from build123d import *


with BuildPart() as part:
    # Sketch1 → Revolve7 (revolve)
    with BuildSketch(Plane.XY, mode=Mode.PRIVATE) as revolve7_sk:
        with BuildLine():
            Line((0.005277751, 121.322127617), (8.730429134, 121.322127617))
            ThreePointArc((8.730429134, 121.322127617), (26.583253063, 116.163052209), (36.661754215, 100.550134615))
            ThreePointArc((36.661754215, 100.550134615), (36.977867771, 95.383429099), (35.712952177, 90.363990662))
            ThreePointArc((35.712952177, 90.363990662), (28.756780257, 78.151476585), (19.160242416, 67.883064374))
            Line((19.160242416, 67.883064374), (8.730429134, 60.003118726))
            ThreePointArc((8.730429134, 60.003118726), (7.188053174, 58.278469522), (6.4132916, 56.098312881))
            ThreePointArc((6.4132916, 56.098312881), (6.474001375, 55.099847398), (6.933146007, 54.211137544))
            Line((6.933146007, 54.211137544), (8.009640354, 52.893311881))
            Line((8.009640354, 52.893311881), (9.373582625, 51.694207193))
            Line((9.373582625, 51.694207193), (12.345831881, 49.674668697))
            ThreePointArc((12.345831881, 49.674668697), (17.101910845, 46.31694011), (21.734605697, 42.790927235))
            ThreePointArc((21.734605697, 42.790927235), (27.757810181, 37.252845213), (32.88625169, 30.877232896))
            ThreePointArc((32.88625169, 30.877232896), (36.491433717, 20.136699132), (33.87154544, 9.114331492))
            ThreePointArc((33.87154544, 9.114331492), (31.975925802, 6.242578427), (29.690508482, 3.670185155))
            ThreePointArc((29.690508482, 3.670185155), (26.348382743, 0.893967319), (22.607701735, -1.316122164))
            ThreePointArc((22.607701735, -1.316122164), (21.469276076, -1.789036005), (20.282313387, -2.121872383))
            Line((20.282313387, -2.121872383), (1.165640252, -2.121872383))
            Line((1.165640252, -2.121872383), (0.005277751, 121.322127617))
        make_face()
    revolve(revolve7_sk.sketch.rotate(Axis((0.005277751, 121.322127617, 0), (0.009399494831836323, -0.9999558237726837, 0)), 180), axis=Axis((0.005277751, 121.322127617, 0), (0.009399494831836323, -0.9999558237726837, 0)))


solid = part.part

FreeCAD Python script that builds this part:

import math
import FreeCAD as App
import Part
import Sketcher

doc = App.newDocument("Part")
body = doc.addObject("PartDesign::Body", "Body")

# Sketch on XY plane
sketch1 = doc.addObject("Sketcher::SketchObject", "Sketch")
body.addObject(sketch1)
sketch1.AttachmentSupport = (doc.XY_Plane, [""])
sketch1.MapMode = "FlatFace"
sketch1.addGeometry([
    Part.LineSegment(App.Vector(8.730429, 121.322128, 0), App.Vector(0.005278, 121.322128, 0)),  # 0
    Part.LineSegment(App.Vector(0.005278, 121.322128, 0), App.Vector(1.16564, -2.121872, 0)),  # 1
    Part.LineSegment(App.Vector(1.16564, -2.121872, 0), App.Vector(20.282313, -2.121872, 0)),  # 2
    Part.ArcOfCircle(Part.Circle(App.Vector(18.113131, 7.89677, 0), App.Vector(0, 0, 1), 10.250783), math.radians(-77.7832), math.radians(-63.994259)),  # 3
    Part.ArcOfCircle(Part.Circle(App.Vector(10.652876, 23.18867, 0), App.Vector(0, 0, 1), 27.265412), math.radians(-63.994259), math.radians(-45.714527)),  # 4
    Part.ArcOfCircle(Part.Circle(App.Vector(12.86943, 20.916131, 0), App.Vector(0, 0, 1), 24.090897), math.radians(-45.714527), math.radians(-29.333105)),  # 5
    Part.ArcOfCircle(Part.Circle(App.Vector(15.914342, 19.205092, 0), App.Vector(0, 0, 1), 20.59817), math.radians(-29.333105), math.radians(34.517584)),  # 6
    Part.ArcOfCircle(Part.Circle(App.Vector(-12.123342, -0.077346, 0), App.Vector(0, 0, 1), 54.626454), math.radians(34.517584), math.radians(51.697839)),  # 7
    Part.ArcOfCircle(Part.Circle(App.Vector(-78.941897, -84.677752, 0), App.Vector(0, 0, 1), 162.431593), math.radians(51.697839), math.radians(55.805275)),  # 8
    Part.LineSegment(App.Vector(12.345832, 49.674669, 0), App.Vector(9.373583, 51.694207, 0)),  # 9
    Part.LineSegment(App.Vector(9.373583, 51.694207, 0), App.Vector(8.00964, 52.893312, 0)),  # 10
    Part.LineSegment(App.Vector(8.00964, 52.893312, 0), App.Vector(6.933146, 54.211138, 0)),  # 11
    Part.ArcOfCircle(Part.Circle(App.Vector(8.808248, 55.742855, 0), App.Vector(0, 0, 1), 2.421191), math.radians(171.557831), math.radians(219.24441)),  # 12
    Part.ArcOfCircle(Part.Circle(App.Vector(12.345832, 55.21781, 0), App.Vector(0, 0, 1), 5.997526), math.radians(127.071822), math.radians(171.557832)),  # 13
    Part.LineSegment(App.Vector(8.730429, 60.003119, 0), App.Vector(19.160242, 67.883064, 0)),  # 14
    Part.ArcOfCircle(Part.Circle(App.Vector(-19.755774, 113.871278, 0), App.Vector(0, 0, 1), 60.244271), math.radians(-49.761527), math.radians(-22.966917)),  # 15
    Part.ArcOfCircle(Part.Circle(App.Vector(20.175967, 96.948465, 0), App.Vector(0, 0, 1), 16.874632), math.radians(-22.966917), math.radians(12.323842)),  # 16
    Part.ArcOfCircle(Part.Circle(App.Vector(10.764647, 94.892362, 0), App.Vector(0, 0, 1), 26.507933), math.radians(12.323842), math.radians(94.401204)),  # 17
], False)
sketch1.addGeometry(Part.LineSegment(App.Vector(0.005278, 121.322128, 0), App.Vector(1.934512, -83.917521, 0)), True)  # axis
sketch1.addConstraint([
    Sketcher.Constraint("Coincident", 0, 2, 1, 1),
    Sketcher.Constraint("Coincident", 1, 2, 2, 1),
    Sketcher.Constraint("Coincident", 2, 2, 3, 1),
    Sketcher.Constraint("Coincident", 3, 2, 4, 1),
    Sketcher.Constraint("Coincident", 4, 2, 5, 1),
    Sketcher.Constraint("Coincident", 5, 2, 6, 1),
    Sketcher.Constraint("Coincident", 6, 2, 7, 1),
    Sketcher.Constraint("Coincident", 7, 2, 8, 1),
    Sketcher.Constraint("Coincident", 8, 2, 9, 1),
    Sketcher.Constraint("Coincident", 9, 2, 10, 1),
    Sketcher.Constraint("Coincident", 10, 2, 11, 1),
    Sketcher.Constraint("Coincident", 11, 2, 12, 2),
    Sketcher.Constraint("Coincident", 12, 1, 13, 2),
    Sketcher.Constraint("Coincident", 13, 1, 14, 1),
    Sketcher.Constraint("Coincident", 14, 2, 15, 1),
    Sketcher.Constraint("Coincident", 15, 2, 16, 1),
    Sketcher.Constraint("Coincident", 16, 2, 17, 1),
    Sketcher.Constraint("Coincident", 17, 2, 0, 1),
    Sketcher.Constraint("Horizontal", 0),
    Sketcher.Constraint("Horizontal", 2),
    Sketcher.Constraint("Coincident", 18, 1, 0, 2),
    Sketcher.Constraint("Radius", 4, 27.265412),
    Sketcher.Constraint("Radius", 6, 20.59817),
    Sketcher.Constraint("Radius", 12, 2.421191),
    Sketcher.Constraint("Radius", 15, 60.244271),
    Sketcher.Constraint("Radius", 3, 10.250783),
    Sketcher.Constraint("Radius", 5, 24.090897),
    Sketcher.Constraint("Radius", 7, 54.626454),
    Sketcher.Constraint("Radius", 8, 162.431593),
    Sketcher.Constraint("Radius", 13, 5.997526),
    Sketcher.Constraint("Radius", 16, 16.874632),
    Sketcher.Constraint("Radius", 17, 26.507933),
    Sketcher.Constraint("DistanceY", 4, 3, 8, 2, 26.485999),
    Sketcher.Constraint("DistanceY", 10, 2, 12, 1, 3.205001),
    Sketcher.Constraint("Distance", 14, 13.071899),
    Sketcher.Constraint("DistanceX", 0, 2, 0, 1, 8.725151),
    Sketcher.Constraint("DistanceX", -1, 1, 3, 2, 22.607702),
    Sketcher.Constraint("DistanceY", 3, 3, 4, 3, 15.2919),
    Sketcher.Constraint("DistanceX", 5, 3, 3, 3, 5.243701),
    Sketcher.Constraint("DistanceY", 7, 3, 12, 3, 55.820202),
    Sketcher.Constraint("DistanceX", 13, 3, 3, 3, 5.767299),
    Sketcher.Constraint("DistanceX", 12, 3, 17, 3, 1.956399),
    Sketcher.Constraint("DistanceX", 1, 2, 6, 3, 14.748701),
    Sketcher.Constraint("DistanceY", 5, 2, 6, 2, 21.762901),
    Sketcher.Constraint("DistanceX", 18, 2, 2, 2, 18.347801),
    Sketcher.Constraint("DistanceY", 18, 2, 3, 2, 82.601398),
    Sketcher.Constraint("Distance", 9, 3.593439),
    Sketcher.Constraint("Distance", 11, 1.701618),
    Sketcher.Constraint("DistanceX", 2, 1, 2, 2, 19.116673),
    Sketcher.Constraint("DistanceX", -1, 1, 3, 3, 18.113131),
    Sketcher.Constraint("DistanceY", -1, 1, 3, 3, 7.89677),
    Sketcher.Constraint("DistanceX", -1, 1, 6, 3, 15.914342),
    Sketcher.Constraint("DistanceY", 8, 3, -1, 1, 84.677752),
    Sketcher.Constraint("DistanceX", -1, 1, 12, 3, 8.808248),
    Sketcher.Constraint("DistanceY", -1, 1, 13, 3, 55.21781),
    Sketcher.Constraint("DistanceY", -1, 1, 15, 3, 113.871278),
    Sketcher.Constraint("DistanceX", -1, 1, 4, 2, 29.690508),
    Sketcher.Constraint("DistanceY", -1, 1, 5, 2, 9.114331),
    Sketcher.Constraint("DistanceX", -1, 1, 10, 2, 8.00964),
    Sketcher.Constraint("DistanceY", -1, 1, 10, 2, 52.893312),
    Sketcher.Constraint("DistanceX", -1, 1, 13, 1, 8.730429),
    Sketcher.Constraint("DistanceY", -1, 1, 15, 2, 90.363991),
    Sketcher.Constraint("DistanceX", -1, 1, 17, 2, 8.730429),
    Sketcher.Constraint("DistanceX", 15, 3, 4, 3, 30.40865),
    Sketcher.Constraint("DistanceX", 12, 3, 16, 3, 11.367719),
    Sketcher.Constraint("DistanceX", 4, 3, 7, 2, 11.081729),
    Sketcher.Constraint("DistanceX", 9, 2, 8, 2, 2.972249),
    Sketcher.Constraint("DistanceY", 16, 3, 16, 2, 3.60167),
])
revolution = doc.addObject("PartDesign::Revolution", "Revolution")
body.addObject(revolution)
revolution.Profile = sketch1
revolution.ReferenceAxis = (sketch1, ["Axis0"])
revolution.Angle = 360

doc.recompute()
